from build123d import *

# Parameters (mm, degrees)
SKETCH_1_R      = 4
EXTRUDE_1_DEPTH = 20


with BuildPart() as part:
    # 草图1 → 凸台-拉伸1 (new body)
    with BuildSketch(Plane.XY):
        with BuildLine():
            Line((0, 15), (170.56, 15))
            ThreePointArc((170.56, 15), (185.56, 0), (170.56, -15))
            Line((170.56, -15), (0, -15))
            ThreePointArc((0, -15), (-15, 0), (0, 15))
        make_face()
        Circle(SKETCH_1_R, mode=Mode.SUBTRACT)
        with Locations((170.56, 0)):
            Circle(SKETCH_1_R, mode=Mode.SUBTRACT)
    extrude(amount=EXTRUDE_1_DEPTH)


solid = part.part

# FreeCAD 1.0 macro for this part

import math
import FreeCAD as App
import Part
import Sketcher

doc = App.newDocument("Part")
body = doc.addObject("PartDesign::Body", "Body")

# Sketch on XY plane
sketch1 = body.newObject("Sketcher::SketchObject", "Sketch")
sketch1.AttachmentSupport = (doc.getObject("XY_Plane"), [""])
sketch1.MapMode = "FlatFace"
sketch1.addGeometry(Part.LineSegment(App.Vector(170.6, 15, 0), App.Vector(0, 15, 0)), False)
sketch1.addGeometry(Part.ArcOfCircle(Part.Circle(App.Vector(0, 0, 0), App.Vector(0, 0, 1), 15), math.radians(90), math.radians(270)), False)
sketch1.addGeometry(Part.LineSegment(App.Vector(0, -15, 0), App.Vector(170.6, -15, 0)), False)
sketch1.addGeometry(Part.ArcOfCircle(Part.Circle(App.Vector(170.6, 0, 0), App.Vector(0, 0, 1), 15), math.radians(-90), math.radians(90)), False)
sketch1.addGeometry(Part.Circle(App.Vector(170.6, 0, 0), App.Vector(0, 0, 1), 4), False)
sketch1.addGeometry(Part.Circle(App.Vector(0, 0, 0), App.Vector(0, 0, 1), 4), False)
sketch1.addConstraint(Sketcher.Constraint("Tangent", 0, 2, 1, 1))
sketch1.addConstraint(Sketcher.Constraint("Tangent", 1, 2, 2, 1))
sketch1.addConstraint(Sketcher.Constraint("Tangent", 2, 2, 3, 1))
sketch1.addConstraint(Sketcher.Constraint("Tangent", 3, 2, 0, 1))
sketch1.addConstraint(Sketcher.Constraint("Horizontal", 0))
sketch1.addConstraint(Sketcher.Constraint("Horizontal", 2))
sketch1.addConstraint(Sketcher.Constraint("Coincident", 1, 3, -1, 1))
sketch1.addConstraint(Sketcher.Constraint("Coincident", 5, 3, -1, 1))
sketch1.addConstraint(Sketcher.Constraint("Coincident", 4, 3, 3, 3))
sketch1.addConstraint(Sketcher.Constraint("Equal", 4, 5))
sketch1.addConstraint(Sketcher.Constraint("Diameter", 4, 8.0))
sketch1.addConstraint(Sketcher.Constraint("Radius", 1, 15.0))
sketch1.addConstraint(Sketcher.Constraint("DistanceX", 0, 2, 0, 1, 170.56))
pad1 = body.newObject("PartDesign::Pad", "Pad")
pad1.Profile = sketch1
pad1.Length = 20

doc.recompute()
